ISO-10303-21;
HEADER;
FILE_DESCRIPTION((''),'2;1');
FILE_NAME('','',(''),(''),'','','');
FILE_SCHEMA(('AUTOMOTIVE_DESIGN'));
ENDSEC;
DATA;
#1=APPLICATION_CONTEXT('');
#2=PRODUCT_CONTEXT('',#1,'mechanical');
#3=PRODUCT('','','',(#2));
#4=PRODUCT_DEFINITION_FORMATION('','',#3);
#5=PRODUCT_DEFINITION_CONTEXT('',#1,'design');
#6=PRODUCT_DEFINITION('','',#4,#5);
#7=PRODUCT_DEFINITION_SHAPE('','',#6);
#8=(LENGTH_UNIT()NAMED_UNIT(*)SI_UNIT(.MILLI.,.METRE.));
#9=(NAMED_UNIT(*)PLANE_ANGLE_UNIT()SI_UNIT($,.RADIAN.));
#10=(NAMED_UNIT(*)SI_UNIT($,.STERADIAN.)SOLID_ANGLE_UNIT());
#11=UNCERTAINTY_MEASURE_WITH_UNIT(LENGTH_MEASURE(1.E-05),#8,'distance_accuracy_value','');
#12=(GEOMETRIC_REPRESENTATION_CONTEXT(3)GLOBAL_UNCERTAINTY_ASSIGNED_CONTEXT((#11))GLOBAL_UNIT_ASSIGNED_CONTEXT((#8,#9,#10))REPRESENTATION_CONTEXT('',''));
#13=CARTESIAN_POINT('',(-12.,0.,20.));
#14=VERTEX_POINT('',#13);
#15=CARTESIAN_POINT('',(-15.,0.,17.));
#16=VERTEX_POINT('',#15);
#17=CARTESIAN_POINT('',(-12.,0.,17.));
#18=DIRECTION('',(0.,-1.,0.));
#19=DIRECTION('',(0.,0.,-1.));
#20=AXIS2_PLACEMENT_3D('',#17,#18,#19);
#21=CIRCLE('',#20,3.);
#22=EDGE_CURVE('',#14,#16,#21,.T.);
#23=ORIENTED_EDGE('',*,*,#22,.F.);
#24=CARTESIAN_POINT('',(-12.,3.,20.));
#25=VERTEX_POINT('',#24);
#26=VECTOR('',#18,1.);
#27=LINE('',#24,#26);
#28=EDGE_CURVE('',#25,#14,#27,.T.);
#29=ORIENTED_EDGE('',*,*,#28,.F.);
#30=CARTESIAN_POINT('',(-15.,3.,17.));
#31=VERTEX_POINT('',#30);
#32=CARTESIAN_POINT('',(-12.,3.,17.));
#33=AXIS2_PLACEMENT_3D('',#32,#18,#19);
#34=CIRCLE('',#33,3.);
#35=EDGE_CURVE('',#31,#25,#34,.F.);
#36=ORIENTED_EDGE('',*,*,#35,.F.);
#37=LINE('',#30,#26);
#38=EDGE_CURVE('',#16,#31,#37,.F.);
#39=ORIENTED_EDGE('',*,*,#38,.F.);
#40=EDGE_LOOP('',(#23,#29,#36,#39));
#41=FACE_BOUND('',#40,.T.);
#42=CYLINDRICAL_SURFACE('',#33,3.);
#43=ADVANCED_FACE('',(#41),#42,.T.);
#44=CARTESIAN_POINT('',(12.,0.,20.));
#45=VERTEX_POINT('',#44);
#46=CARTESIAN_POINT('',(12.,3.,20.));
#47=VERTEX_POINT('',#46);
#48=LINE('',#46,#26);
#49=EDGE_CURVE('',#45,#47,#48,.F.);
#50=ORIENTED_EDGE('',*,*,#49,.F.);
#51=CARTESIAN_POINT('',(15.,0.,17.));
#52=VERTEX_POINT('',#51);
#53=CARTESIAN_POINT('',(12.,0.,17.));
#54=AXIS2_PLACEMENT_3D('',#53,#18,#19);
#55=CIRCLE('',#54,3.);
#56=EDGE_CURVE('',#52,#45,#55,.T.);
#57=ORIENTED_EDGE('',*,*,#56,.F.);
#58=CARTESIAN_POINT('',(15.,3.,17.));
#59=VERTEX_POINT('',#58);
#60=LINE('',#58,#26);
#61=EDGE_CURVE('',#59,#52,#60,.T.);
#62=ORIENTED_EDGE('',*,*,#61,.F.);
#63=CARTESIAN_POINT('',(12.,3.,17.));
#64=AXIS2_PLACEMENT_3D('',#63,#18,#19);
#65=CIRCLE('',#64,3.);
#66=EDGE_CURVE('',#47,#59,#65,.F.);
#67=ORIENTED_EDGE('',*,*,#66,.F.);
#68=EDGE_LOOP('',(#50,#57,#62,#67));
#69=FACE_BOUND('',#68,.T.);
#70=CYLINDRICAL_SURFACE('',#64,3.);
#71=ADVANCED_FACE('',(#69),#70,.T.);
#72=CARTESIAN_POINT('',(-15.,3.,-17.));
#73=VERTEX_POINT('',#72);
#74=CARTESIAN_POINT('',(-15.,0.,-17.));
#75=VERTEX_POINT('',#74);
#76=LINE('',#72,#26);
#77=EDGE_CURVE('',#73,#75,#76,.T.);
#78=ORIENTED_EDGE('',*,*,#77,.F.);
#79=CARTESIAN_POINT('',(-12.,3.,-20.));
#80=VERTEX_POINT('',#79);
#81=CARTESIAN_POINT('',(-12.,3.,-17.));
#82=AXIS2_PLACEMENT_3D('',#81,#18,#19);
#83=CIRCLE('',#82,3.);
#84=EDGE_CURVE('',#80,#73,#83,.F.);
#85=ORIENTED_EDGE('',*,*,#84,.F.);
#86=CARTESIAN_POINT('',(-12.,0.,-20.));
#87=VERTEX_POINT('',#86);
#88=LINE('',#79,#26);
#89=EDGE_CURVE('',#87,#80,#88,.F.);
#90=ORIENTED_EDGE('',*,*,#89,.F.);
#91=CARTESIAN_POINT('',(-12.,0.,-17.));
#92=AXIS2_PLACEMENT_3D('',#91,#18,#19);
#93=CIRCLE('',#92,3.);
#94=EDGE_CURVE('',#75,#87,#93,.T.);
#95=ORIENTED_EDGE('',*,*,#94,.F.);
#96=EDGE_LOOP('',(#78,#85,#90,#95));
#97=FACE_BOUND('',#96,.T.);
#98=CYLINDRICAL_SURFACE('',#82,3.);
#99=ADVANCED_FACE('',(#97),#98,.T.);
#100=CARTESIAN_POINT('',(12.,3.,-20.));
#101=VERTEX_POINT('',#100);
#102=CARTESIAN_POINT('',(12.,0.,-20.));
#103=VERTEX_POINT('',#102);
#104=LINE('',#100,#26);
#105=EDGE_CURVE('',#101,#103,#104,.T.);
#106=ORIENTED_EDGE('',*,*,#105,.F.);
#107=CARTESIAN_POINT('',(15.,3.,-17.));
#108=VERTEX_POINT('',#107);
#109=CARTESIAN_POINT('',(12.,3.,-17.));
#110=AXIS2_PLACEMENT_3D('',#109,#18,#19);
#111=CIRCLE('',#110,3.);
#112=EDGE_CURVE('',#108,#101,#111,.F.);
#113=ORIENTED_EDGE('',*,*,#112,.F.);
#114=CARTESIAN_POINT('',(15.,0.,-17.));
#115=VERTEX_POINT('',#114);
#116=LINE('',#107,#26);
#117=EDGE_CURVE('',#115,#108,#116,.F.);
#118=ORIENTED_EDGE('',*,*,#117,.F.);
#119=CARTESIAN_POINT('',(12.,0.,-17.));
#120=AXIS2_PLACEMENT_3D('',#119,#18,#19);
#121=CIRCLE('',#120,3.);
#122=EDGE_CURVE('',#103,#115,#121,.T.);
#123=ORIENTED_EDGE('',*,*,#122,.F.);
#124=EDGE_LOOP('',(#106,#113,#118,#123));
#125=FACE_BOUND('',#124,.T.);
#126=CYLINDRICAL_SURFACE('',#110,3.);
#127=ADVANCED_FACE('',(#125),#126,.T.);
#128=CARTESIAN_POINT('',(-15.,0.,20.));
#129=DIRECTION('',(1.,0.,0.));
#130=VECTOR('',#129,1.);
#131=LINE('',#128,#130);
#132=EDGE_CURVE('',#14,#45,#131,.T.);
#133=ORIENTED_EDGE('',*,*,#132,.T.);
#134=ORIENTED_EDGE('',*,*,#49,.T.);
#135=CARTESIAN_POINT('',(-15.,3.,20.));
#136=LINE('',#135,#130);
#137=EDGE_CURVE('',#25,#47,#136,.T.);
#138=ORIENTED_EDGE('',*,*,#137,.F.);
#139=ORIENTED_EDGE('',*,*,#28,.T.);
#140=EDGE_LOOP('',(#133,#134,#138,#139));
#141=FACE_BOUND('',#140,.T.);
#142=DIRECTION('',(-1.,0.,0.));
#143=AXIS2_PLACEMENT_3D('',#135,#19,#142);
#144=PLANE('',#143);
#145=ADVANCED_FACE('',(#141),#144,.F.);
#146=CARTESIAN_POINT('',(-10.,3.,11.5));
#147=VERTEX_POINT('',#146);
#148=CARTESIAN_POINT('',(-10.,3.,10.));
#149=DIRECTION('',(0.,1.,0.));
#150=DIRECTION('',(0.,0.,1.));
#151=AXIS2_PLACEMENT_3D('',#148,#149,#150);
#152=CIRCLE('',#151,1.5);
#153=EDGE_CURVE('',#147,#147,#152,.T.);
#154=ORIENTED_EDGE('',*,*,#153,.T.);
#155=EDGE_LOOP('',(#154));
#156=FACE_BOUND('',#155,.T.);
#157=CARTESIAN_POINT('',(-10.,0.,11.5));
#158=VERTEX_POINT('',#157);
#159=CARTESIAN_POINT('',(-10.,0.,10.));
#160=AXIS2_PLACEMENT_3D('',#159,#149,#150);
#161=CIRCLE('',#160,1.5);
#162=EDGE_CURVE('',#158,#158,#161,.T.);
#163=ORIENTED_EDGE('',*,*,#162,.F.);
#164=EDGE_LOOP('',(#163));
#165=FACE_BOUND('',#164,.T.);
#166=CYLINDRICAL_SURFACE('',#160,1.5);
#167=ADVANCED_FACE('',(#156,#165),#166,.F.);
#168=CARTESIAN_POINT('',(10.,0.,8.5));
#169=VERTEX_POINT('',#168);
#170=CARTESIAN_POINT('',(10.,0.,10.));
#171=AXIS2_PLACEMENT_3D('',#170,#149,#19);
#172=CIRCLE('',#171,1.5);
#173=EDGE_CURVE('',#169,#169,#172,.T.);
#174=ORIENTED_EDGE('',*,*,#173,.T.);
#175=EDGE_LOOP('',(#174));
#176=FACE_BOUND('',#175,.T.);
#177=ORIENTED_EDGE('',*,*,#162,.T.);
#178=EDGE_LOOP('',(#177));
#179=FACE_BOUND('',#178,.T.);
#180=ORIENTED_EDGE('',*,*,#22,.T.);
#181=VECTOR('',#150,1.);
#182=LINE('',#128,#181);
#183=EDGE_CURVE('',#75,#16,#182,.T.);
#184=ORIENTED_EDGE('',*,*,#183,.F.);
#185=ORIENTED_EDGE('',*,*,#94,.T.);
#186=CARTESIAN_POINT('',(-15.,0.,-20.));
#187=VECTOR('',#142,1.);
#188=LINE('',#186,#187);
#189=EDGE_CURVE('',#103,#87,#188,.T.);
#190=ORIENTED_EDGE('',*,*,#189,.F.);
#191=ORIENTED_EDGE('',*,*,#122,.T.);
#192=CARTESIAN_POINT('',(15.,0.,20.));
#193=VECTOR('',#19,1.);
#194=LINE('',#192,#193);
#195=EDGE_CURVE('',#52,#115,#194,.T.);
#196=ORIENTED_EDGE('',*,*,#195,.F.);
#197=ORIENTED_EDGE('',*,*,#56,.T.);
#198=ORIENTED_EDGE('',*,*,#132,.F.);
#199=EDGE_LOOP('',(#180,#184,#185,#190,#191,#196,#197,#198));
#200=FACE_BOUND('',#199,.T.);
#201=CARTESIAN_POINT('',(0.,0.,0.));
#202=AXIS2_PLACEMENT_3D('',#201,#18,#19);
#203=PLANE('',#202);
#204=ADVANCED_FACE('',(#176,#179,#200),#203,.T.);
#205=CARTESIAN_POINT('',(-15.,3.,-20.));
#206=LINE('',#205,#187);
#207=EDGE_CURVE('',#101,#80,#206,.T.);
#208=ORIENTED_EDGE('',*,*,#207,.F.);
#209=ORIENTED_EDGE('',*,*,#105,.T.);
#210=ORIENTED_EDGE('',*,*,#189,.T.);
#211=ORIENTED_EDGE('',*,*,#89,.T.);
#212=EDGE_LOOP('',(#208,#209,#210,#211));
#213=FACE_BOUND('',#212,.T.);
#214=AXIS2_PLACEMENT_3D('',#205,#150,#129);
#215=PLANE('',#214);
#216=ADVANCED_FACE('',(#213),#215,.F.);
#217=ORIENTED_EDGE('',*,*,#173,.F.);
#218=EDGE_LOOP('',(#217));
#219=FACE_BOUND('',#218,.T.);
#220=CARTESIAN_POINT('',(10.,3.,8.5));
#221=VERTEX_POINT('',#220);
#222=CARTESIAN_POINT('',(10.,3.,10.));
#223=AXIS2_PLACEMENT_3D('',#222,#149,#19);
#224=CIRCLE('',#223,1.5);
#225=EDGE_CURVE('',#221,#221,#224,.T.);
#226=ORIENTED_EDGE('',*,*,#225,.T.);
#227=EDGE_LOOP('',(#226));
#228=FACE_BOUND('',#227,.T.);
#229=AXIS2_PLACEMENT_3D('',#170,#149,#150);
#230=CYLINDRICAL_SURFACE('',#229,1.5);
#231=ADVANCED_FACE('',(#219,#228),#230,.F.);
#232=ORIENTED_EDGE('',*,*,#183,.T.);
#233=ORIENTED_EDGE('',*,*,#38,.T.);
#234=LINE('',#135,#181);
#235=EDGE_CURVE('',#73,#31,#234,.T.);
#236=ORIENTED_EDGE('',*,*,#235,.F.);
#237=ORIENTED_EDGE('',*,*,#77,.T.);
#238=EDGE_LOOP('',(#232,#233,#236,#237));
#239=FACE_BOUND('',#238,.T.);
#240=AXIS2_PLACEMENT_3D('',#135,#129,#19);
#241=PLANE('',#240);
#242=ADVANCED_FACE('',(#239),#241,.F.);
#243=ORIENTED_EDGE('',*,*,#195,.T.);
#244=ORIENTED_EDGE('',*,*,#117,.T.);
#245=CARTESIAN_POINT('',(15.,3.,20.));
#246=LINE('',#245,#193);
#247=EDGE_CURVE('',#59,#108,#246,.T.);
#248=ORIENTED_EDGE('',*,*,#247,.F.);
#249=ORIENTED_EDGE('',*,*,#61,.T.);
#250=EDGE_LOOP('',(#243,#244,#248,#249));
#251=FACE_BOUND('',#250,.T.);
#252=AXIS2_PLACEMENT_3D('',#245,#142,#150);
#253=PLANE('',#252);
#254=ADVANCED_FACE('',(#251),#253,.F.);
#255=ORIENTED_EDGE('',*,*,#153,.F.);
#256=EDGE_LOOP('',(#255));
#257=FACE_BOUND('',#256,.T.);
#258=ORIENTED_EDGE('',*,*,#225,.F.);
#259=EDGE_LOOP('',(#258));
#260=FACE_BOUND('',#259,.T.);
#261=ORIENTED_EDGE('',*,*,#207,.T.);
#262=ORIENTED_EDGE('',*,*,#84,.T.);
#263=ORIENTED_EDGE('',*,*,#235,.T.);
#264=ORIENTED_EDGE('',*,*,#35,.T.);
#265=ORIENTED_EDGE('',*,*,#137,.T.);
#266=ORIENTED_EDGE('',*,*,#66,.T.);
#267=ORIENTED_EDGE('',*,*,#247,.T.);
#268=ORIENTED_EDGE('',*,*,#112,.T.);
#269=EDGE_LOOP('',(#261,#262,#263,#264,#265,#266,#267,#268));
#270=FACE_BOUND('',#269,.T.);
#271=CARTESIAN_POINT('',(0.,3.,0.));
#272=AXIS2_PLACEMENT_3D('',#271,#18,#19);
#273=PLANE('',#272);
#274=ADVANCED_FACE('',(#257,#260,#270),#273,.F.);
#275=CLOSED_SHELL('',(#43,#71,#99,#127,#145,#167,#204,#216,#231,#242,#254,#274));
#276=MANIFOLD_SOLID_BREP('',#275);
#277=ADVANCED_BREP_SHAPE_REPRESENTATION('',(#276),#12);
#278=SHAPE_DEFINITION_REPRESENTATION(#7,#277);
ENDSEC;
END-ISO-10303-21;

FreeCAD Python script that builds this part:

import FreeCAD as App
import Part
import Sketcher
Q = App.Units.Quantity


def edges_at(feature, points):
    """Names of the edges that pass closest to the given points."""
    edges = feature.Shape.Edges
    near = lambda p: min(range(len(edges)), key=lambda i: edges[i].distToShape(Part.Vertex(*p))[0])
    return sorted({f"Edge{near(p) + 1}" for p in points})

doc = App.newDocument("Part")
body = doc.addObject("PartDesign::Body", "Body")

# Sketch on XZ plane
sketch1 = body.newObject("Sketcher::SketchObject", "Sketch")
sketch1.AttachmentSupport = (doc.getObject("XZ_Plane"), [""])
sketch1.MapMode = "FlatFace"
sketch1.addGeometry(Part.LineSegment(App.Vector(-15, -20, 0), App.Vector(-15, 20, 0)), False)
sketch1.addGeometry(Part.LineSegment(App.Vector(-15, 20, 0), App.Vector(15, 20, 0)), False)
sketch1.addGeometry(Part.LineSegment(App.Vector(15, 20, 0), App.Vector(15, -20, 0)), False)
sketch1.addGeometry(Part.LineSegment(App.Vector(15, -20, 0), App.Vector(-15, -20, 0)), False)
sketch1.addConstraint(Sketcher.Constraint("Coincident", 0, 2, 1, 1))
sketch1.addConstraint(Sketcher.Constraint("Coincident", 1, 2, 2, 1))
sketch1.addConstraint(Sketcher.Constraint("Coincident", 2, 2, 3, 1))
sketch1.addConstraint(Sketcher.Constraint("Coincident", 3, 2, 0, 1))
sketch1.addConstraint(Sketcher.Constraint("Vertical", 0))
sketch1.addConstraint(Sketcher.Constraint("Horizontal", 1))
sketch1.addConstraint(Sketcher.Constraint("Vertical", 2))
sketch1.addConstraint(Sketcher.Constraint("Horizontal", 3))
sketch1.addConstraint(Sketcher.Constraint("Symmetric", 0, 2, 2, 2, -1, 1))
sketch1.addConstraint(Sketcher.Constraint("DistanceX", 1, 1, 1, 2, Q("30 mm")))
sketch1.addConstraint(Sketcher.Constraint("DistanceY", 0, 1, 0, 2, Q("40 mm")))
pad1 = body.newObject("PartDesign::Pad", "Pad")
pad1.Profile = sketch1
pad1.Length = 3
pad1.Reversed = True

# Sketch on XZ plane
sketch2 = body.newObject("Sketcher::SketchObject", "Sketch001")
sketch2.AttachmentSupport = (doc.getObject("XZ_Plane"), [""])
sketch2.MapMode = "FlatFace"
sketch2.AttachmentOffset = App.Placement(App.Vector(0, 0, -3), App.Rotation())
sketch2.addGeometry(Part.Circle(App.Vector(-10, 10, 0), App.Vector(0, 0, 1), 1.5), False)
sketch2.addGeometry(Part.Circle(App.Vector(10, 10, 0), App.Vector(0, 0, 1), 1.5), False)
sketch2.addConstraint(Sketcher.Constraint("Equal", 0, 1))
sketch2.addConstraint(Sketcher.Constraint("Symmetric", 0, 3, 1, 3, -2))
sketch2.addConstraint(Sketcher.Constraint("Diameter", 0, Q("3 mm")))
sketch2.addConstraint(Sketcher.Constraint("DistanceX", 0, 3, -1, 1, Q("10 mm")))
sketch2.addConstraint(Sketcher.Constraint("DistanceY", -1, 1, 0, 3, Q("10 mm")))
pocket1 = body.newObject("PartDesign::Pocket", "Pocket")
pocket1.Profile = sketch2
pocket1.Type = "ThroughAll"
pocket1.Reversed = True
doc.recompute()

fillet = body.newObject("PartDesign::Fillet", "Fillet")
fillet.Base = (pocket1, edges_at(pocket1, [
    (15, 1.5, 20),
    (-15, 1.5, 20),
    (-15, 1.5, -20),
    (15, 1.5, -20),
]))
fillet.Radius = 3

doc.recompute()
